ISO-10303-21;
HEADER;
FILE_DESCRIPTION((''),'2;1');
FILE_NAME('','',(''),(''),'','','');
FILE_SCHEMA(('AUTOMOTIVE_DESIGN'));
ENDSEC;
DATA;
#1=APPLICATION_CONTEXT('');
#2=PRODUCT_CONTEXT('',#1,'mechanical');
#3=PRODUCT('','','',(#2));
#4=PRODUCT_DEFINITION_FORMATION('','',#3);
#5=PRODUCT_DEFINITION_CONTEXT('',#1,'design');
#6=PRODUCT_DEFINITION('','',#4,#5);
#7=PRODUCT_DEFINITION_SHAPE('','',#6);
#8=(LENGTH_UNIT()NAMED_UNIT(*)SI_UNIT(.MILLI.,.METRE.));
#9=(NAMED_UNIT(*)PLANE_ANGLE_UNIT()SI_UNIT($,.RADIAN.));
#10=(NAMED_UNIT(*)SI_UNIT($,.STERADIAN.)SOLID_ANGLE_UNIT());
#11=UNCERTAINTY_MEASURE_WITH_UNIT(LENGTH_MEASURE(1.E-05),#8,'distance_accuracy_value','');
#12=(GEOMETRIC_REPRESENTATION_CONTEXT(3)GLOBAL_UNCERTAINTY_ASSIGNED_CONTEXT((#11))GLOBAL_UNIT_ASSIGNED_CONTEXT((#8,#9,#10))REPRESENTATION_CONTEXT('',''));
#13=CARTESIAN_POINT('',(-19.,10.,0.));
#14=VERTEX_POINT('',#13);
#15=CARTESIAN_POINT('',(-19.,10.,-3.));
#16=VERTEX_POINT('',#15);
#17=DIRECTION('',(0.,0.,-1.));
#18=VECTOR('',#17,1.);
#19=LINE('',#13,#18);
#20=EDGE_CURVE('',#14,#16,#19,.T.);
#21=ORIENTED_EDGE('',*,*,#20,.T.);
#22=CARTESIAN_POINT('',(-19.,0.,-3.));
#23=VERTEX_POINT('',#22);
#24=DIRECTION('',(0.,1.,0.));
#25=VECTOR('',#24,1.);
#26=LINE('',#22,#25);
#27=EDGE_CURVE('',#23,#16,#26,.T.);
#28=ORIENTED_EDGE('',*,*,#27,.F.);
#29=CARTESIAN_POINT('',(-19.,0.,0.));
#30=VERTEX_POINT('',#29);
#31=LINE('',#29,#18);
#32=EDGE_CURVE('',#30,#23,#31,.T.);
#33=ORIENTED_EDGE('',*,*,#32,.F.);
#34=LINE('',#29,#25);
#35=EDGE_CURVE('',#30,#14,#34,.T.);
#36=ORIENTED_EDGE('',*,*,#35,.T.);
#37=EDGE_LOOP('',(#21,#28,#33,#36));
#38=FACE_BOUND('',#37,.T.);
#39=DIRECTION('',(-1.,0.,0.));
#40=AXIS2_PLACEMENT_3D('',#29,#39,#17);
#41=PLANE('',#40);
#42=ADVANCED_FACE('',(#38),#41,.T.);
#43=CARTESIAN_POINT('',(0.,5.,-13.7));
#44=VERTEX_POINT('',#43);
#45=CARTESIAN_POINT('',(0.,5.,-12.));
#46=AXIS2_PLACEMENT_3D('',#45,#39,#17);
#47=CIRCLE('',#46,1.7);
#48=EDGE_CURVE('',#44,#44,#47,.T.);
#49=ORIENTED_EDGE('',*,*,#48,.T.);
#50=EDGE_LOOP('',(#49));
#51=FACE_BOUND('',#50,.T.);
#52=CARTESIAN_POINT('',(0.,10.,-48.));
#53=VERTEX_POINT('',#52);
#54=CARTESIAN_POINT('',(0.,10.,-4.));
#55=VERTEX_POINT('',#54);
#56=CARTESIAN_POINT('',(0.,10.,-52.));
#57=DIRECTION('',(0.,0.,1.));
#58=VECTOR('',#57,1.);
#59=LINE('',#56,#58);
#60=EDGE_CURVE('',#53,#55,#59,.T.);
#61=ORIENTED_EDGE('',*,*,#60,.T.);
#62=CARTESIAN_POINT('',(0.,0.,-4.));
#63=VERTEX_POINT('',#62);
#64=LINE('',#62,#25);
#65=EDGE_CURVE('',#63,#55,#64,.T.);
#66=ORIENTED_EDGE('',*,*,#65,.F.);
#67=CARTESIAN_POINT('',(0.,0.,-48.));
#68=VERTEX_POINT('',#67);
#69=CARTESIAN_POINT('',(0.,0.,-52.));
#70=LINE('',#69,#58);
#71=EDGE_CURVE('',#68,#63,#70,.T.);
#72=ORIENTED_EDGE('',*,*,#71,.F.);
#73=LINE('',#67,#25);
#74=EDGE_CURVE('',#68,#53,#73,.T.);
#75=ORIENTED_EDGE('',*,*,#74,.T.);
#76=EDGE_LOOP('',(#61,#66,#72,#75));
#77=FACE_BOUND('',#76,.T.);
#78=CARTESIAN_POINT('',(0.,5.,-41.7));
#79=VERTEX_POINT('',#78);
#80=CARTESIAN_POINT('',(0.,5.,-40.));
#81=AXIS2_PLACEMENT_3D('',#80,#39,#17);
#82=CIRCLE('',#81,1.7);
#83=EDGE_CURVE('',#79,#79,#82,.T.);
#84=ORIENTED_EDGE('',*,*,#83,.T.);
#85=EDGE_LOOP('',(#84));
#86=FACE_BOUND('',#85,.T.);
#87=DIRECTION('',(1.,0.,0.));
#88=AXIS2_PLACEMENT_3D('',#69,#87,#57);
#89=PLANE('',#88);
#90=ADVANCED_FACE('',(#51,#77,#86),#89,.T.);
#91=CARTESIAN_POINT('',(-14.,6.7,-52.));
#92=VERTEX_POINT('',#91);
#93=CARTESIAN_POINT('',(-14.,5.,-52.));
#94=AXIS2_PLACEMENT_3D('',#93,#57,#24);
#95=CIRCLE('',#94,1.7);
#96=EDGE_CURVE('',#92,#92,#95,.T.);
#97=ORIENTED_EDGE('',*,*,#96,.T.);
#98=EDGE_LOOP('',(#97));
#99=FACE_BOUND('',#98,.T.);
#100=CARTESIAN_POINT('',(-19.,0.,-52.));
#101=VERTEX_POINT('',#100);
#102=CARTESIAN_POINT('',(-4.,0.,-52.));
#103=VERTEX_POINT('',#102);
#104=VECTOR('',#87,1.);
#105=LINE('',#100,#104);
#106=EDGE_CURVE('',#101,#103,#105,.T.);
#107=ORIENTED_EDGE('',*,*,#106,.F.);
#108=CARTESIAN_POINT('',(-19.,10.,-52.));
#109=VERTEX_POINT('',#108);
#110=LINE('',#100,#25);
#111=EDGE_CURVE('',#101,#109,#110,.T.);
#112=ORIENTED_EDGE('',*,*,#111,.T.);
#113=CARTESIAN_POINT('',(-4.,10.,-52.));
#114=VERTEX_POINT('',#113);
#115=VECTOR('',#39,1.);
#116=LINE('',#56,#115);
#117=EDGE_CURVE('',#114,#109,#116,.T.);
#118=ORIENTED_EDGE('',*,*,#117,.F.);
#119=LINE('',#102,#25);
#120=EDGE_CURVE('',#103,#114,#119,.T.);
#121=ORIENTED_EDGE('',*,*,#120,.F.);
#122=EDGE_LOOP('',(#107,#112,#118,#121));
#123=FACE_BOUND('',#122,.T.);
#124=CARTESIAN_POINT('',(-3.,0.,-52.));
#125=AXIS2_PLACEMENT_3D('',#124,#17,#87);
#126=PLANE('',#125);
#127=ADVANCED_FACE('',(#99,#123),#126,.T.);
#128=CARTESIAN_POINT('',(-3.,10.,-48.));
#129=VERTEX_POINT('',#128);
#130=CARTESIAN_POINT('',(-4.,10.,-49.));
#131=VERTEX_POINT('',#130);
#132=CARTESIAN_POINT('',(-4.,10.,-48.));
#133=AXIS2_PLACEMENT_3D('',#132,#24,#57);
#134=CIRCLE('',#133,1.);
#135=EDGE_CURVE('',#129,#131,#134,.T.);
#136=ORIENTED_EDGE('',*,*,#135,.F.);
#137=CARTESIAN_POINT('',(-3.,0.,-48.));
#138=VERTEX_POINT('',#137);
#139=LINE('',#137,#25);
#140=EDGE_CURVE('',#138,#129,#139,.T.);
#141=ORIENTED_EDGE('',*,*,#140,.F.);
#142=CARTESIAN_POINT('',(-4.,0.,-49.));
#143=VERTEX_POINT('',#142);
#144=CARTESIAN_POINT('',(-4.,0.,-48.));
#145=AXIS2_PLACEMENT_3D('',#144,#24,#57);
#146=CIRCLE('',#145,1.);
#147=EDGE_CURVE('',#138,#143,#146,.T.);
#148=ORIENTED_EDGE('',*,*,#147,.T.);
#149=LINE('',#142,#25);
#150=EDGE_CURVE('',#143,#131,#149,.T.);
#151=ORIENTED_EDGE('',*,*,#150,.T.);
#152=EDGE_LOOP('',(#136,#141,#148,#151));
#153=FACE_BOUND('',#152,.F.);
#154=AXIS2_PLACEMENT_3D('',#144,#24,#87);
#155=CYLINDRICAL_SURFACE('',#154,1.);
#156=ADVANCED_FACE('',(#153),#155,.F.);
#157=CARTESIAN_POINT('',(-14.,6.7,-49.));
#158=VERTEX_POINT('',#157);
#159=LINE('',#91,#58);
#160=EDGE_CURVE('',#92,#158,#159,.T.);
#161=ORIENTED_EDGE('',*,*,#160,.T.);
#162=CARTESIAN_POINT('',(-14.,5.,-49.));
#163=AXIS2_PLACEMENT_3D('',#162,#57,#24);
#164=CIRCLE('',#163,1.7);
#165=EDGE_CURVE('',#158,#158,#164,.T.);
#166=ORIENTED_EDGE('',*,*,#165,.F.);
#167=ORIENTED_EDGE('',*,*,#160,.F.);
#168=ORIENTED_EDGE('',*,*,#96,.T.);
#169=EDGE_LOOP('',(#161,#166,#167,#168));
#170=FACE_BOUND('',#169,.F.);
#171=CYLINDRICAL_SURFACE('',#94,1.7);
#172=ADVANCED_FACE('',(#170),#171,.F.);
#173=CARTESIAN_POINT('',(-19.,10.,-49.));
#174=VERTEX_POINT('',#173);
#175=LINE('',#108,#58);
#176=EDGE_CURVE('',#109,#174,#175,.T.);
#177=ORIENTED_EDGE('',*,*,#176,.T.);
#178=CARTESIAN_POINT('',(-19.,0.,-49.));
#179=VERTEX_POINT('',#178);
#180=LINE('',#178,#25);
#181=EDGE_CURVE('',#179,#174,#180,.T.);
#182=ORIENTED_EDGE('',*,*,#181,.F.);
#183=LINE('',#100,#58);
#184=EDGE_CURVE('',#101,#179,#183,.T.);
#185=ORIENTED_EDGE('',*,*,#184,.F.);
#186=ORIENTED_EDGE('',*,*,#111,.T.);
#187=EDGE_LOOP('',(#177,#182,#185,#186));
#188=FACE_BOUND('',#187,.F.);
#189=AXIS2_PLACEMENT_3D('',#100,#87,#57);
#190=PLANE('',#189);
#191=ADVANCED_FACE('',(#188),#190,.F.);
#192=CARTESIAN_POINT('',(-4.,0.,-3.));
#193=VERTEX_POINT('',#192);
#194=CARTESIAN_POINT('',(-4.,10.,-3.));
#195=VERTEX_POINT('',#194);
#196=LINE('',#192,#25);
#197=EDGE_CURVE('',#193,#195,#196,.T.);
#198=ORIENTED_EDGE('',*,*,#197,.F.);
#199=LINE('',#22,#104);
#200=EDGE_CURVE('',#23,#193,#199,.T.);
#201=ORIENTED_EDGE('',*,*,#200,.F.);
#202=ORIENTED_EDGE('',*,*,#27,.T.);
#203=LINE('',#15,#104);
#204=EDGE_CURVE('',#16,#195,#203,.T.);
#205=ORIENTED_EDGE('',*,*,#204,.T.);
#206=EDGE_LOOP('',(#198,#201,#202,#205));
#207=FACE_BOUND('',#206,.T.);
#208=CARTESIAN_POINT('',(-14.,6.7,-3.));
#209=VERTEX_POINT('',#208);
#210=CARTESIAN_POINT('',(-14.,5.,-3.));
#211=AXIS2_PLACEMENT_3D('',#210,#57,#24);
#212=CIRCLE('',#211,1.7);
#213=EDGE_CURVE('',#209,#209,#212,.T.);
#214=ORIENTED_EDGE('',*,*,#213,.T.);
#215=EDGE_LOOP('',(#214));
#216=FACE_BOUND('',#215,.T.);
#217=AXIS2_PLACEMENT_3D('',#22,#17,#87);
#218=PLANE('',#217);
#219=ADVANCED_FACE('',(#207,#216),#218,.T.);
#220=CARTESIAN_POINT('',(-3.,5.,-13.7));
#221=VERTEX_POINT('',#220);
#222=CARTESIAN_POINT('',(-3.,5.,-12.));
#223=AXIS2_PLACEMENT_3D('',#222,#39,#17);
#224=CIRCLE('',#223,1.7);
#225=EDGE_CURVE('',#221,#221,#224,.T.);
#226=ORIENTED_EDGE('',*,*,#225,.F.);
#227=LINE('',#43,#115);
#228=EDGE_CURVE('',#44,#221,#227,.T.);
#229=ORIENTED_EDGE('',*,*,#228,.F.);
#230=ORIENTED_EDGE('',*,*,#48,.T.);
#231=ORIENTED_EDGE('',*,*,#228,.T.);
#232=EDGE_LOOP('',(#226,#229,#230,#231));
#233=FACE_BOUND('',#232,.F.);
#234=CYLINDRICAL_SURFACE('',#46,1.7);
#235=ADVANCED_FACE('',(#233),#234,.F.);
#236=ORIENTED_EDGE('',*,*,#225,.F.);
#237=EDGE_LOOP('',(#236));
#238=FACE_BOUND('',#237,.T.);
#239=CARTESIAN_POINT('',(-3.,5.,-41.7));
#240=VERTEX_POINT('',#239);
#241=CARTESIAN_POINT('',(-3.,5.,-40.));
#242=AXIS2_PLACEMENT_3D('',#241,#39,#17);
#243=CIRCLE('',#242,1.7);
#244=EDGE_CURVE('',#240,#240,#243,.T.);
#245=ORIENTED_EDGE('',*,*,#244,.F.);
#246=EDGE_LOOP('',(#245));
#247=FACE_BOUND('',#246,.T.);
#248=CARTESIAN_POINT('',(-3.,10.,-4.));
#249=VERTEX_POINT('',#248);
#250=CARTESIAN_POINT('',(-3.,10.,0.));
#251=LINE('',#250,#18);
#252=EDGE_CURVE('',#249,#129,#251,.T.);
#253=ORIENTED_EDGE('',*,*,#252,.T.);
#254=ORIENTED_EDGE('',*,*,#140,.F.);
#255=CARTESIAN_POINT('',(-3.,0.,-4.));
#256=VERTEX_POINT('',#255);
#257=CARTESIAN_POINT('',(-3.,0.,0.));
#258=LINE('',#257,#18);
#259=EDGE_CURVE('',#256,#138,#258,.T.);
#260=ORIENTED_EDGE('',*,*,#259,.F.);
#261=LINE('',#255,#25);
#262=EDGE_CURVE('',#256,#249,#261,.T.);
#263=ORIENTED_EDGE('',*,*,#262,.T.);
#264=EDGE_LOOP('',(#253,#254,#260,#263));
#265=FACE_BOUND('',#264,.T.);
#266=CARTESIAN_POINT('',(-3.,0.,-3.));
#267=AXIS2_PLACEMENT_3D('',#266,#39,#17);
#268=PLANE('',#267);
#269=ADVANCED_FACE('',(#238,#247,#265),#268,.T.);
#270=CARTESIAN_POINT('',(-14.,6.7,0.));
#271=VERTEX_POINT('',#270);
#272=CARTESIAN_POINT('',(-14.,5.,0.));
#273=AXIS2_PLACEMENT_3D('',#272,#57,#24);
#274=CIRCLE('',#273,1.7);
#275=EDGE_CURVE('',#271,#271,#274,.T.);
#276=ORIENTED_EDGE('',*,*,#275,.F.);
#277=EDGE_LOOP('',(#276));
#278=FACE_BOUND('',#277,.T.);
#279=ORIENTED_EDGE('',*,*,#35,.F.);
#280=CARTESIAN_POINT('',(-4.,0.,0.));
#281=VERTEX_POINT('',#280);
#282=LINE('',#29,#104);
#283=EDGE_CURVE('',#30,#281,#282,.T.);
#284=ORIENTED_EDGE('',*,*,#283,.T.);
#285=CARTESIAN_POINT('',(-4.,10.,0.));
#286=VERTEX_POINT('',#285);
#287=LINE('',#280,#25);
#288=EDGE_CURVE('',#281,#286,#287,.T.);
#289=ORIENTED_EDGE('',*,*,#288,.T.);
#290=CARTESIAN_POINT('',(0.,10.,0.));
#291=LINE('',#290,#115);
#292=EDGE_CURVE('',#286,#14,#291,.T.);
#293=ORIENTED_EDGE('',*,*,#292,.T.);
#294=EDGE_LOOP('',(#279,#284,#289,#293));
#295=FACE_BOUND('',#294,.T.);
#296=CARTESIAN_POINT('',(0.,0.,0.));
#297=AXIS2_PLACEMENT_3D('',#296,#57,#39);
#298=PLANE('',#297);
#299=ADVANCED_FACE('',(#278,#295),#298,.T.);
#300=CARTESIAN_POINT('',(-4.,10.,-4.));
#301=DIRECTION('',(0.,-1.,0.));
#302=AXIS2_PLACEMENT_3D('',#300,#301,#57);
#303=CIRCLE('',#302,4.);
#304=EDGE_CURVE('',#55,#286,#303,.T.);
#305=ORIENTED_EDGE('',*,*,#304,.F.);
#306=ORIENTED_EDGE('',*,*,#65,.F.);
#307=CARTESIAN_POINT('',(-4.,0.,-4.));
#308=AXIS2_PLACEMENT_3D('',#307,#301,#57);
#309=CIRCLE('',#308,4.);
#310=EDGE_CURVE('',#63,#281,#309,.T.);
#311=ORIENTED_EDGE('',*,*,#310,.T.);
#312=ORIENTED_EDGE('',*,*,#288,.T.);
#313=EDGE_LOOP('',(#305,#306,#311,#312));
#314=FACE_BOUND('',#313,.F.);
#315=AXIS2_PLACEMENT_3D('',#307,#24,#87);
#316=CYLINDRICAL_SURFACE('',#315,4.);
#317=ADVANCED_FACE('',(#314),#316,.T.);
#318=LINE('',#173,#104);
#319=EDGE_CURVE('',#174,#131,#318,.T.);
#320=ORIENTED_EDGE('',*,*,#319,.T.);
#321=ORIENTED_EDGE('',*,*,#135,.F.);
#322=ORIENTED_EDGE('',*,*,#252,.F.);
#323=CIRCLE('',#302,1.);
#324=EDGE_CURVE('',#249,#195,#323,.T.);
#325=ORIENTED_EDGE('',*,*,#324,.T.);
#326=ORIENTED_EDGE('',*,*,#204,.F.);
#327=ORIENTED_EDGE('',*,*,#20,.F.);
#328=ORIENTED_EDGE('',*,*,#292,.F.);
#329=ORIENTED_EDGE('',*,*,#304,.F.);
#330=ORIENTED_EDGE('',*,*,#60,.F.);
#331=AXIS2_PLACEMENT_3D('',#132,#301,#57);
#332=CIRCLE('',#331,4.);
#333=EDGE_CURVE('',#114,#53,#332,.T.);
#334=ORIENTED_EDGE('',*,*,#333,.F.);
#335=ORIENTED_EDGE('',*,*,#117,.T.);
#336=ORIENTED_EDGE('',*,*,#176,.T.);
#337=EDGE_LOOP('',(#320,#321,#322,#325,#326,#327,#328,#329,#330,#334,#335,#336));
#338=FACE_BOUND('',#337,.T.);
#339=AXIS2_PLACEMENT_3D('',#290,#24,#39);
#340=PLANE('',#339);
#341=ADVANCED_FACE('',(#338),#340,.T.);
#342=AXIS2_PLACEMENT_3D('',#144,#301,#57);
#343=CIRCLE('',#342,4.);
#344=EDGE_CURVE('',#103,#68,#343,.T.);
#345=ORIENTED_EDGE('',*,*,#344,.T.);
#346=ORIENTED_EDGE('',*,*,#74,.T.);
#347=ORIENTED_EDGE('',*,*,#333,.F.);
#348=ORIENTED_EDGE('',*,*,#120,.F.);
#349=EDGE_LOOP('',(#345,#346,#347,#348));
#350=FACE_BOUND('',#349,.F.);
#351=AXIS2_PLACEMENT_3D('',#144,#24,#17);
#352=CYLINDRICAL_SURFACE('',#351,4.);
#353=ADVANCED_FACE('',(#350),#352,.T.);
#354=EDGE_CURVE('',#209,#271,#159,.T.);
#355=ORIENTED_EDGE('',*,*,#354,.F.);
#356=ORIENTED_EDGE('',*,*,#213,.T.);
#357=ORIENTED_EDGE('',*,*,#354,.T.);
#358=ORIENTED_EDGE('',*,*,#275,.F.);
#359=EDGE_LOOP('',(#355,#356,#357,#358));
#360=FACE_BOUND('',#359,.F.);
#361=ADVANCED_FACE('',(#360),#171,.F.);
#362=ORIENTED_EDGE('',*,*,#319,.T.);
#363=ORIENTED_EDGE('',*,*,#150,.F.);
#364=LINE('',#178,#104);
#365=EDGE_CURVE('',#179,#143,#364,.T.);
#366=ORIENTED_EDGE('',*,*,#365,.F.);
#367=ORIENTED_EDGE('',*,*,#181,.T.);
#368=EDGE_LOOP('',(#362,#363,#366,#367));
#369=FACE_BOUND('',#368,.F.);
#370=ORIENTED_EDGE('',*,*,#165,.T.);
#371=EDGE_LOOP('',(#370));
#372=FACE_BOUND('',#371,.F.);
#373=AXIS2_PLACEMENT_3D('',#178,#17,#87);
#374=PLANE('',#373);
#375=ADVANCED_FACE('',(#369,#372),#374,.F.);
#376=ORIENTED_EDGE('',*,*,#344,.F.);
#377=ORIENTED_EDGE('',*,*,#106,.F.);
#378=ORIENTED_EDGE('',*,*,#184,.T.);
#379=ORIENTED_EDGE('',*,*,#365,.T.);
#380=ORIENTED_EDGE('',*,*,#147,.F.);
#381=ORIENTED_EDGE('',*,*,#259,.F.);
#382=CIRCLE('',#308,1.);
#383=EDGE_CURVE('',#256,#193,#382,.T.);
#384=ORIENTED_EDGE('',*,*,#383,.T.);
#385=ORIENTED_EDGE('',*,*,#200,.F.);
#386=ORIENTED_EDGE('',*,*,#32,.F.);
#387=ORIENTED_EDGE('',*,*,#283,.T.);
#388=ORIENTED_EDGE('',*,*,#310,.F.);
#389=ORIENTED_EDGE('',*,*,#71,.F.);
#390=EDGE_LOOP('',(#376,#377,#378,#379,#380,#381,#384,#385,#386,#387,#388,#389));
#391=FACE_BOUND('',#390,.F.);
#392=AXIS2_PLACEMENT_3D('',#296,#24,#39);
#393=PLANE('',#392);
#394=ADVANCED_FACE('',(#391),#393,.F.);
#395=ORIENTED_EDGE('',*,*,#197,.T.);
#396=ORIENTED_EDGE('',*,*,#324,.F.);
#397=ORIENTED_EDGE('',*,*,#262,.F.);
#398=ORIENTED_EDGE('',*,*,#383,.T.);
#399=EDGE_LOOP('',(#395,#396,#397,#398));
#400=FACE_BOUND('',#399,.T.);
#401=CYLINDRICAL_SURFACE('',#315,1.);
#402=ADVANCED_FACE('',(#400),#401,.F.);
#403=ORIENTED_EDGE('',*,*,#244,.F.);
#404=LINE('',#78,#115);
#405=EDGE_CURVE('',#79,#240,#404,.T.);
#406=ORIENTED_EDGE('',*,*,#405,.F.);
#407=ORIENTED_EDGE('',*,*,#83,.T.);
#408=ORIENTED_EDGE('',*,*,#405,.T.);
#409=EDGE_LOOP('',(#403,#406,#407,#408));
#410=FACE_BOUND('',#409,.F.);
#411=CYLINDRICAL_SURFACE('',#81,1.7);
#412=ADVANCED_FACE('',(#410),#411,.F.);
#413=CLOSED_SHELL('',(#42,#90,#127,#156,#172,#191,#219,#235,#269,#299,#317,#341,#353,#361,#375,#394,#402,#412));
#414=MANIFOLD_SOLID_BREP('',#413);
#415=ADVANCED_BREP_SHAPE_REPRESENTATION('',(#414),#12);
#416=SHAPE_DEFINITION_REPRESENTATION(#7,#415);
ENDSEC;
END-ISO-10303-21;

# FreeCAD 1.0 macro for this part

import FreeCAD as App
import Part
import Sketcher
from FreeCAD import Vector


def edges_at(feature, points):
    """Names of the edges that pass closest to the given points."""
    edges = feature.Shape.Edges
    near = lambda p: min(range(len(edges)), key=lambda i: edges[i].distToShape(Part.Vertex(*p))[0])
    return sorted({f"Edge{near(p) + 1}" for p in points})

doc = App.newDocument("Part")
body = doc.addObject("PartDesign::Body", "Body")

# Sketch on XZ plane
sketch1 = body.newObject("Sketcher::SketchObject", "Sketch")
sketch1.AttachmentSupport = (doc.getObject("XZ_Plane"), [""])
sketch1.MapMode = "FlatFace"
sketch1.addGeometry(Part.LineSegment(Vector(0, 0, 0), Vector(0, -52, 0)), False)
sketch1.addGeometry(Part.LineSegment(Vector(0, -52, 0), Vector(-19, -52, 0)), False)
sketch1.addGeometry(Part.LineSegment(Vector(-19, -52, 0), Vector(-19, -49, 0)), False)
sketch1.addGeometry(Part.LineSegment(Vector(-19, -49, 0), Vector(-3, -49, 0)), False)
sketch1.addGeometry(Part.LineSegment(Vector(-3, -49, 0), Vector(-3, -3, 0)), False)
sketch1.addGeometry(Part.LineSegment(Vector(-3, -3, 0), Vector(-19, -3, 0)), False)
sketch1.addGeometry(Part.LineSegment(Vector(-19, -3, 0), Vector(-19, 0, 0)), False)
sketch1.addGeometry(Part.LineSegment(Vector(-19, 0, 0), Vector(0, 0, 0)), False)
sketch1.addConstraint(Sketcher.Constraint("Coincident", 0, 2, 1, 1))
sketch1.addConstraint(Sketcher.Constraint("Coincident", 1, 2, 2, 1))
sketch1.addConstraint(Sketcher.Constraint("Coincident", 2, 2, 3, 1))
sketch1.addConstraint(Sketcher.Constraint("Coincident", 3, 2, 4, 1))
sketch1.addConstraint(Sketcher.Constraint("Coincident", 4, 2, 5, 1))
sketch1.addConstraint(Sketcher.Constraint("Coincident", 5, 2, 6, 1))
sketch1.addConstraint(Sketcher.Constraint("Coincident", 6, 2, 7, 1))
sketch1.addConstraint(Sketcher.Constraint("Coincident", 7, 2, 0, 1))
sketch1.addConstraint(Sketcher.Constraint("Vertical", 0))
sketch1.addConstraint(Sketcher.Constraint("Horizontal", 1))
sketch1.addConstraint(Sketcher.Constraint("Vertical", 2))
sketch1.addConstraint(Sketcher.Constraint("Horizontal", 3))
sketch1.addConstraint(Sketcher.Constraint("Vertical", 4))
sketch1.addConstraint(Sketcher.Constraint("Horizontal", 5))
sketch1.addConstraint(Sketcher.Constraint("Vertical", 6))
sketch1.addConstraint(Sketcher.Constraint("Horizontal", 7))
sketch1.addConstraint(Sketcher.Constraint("Coincident", 7, 2, -1, 1))
sketch1.addConstraint(Sketcher.Constraint("Vertical", 2, 2, 5, 2))
sketch1.addConstraint(Sketcher.Constraint("Equal", 2, 6))
sketch1.addConstraint(Sketcher.Constraint("DistanceX", 3, 1, 3, 2, 16.0))
sketch1.addConstraint(Sketcher.Constraint("DistanceY", 2, 1, 2, 2, 3.0))
sketch1.addConstraint(Sketcher.Constraint("DistanceY", 4, 1, 4, 2, 46.0))
sketch1.addConstraint(Sketcher.Constraint("DistanceX", 3, 2, -1, 1, 3.0))
pad1 = body.newObject("PartDesign::Pad", "Pad")
pad1.Profile = sketch1
pad1.Length = 10
pad1.Reversed = True
doc.recompute()

fillet = body.newObject("PartDesign::Fillet", "Fillet")
fillet.Base = (pad1, edges_at(pad1, [(-3, 5, -49), (-3, 5, -3)]))
fillet.Radius = 1
doc.recompute()

fillet2 = body.newObject("PartDesign::Fillet", "Fillet001")
fillet2.Base = (fillet, edges_at(fillet, [(0, 5, -52), (0, 5, 0)]))
fillet2.Radius = 4

# Sketch on XY plane
sketch2 = body.newObject("Sketcher::SketchObject", "Sketch001")
sketch2.AttachmentSupport = (doc.getObject("XY_Plane"), [""])
sketch2.MapMode = "FlatFace"
sketch2.AttachmentOffset = App.Placement(Vector(0, 0, -52), App.Rotation())
sketch2.addGeometry(Part.Circle(Vector(-14, 5, 0), Vector(0, 0, 1), 1.7), False)
sketch2.addConstraint(Sketcher.Constraint("Diameter", 0, 3.4))
sketch2.addConstraint(Sketcher.Constraint("DistanceX", 0, 3, -1, 1, 14.0))
sketch2.addConstraint(Sketcher.Constraint("DistanceY", -1, 1, 0, 3, 5.0))
doc.recompute()
hole = body.newObject("PartDesign::Hole", "Hole")
hole.Profile = sketch2
hole.ThreadType = "None"
hole.Diameter = 3.4
hole.DepthType = "ThroughAll"
hole.Reversed = True

# Sketch on YZ plane
sketch3 = body.newObject("Sketcher::SketchObject", "Sketch002")
sketch3.AttachmentSupport = (doc.getObject("YZ_Plane"), [""])
sketch3.MapMode = "FlatFace"
sketch3.addGeometry(Part.Circle(Vector(5, -12, 0), Vector(0, 0, 1), 1.7), False)
sketch3.addGeometry(Part.Circle(Vector(5, -40, 0), Vector(0, 0, 1), 1.7), False)
sketch3.addConstraint(Sketcher.Constraint("Equal", 0, 1))
sketch3.addConstraint(Sketcher.Constraint("Vertical", 0, 3, 1, 3))
sketch3.addConstraint(Sketcher.Constraint("Diameter", 0, 3.4))
sketch3.addConstraint(Sketcher.Constraint("DistanceX", -1, 1, 0, 3, 5.0))
sketch3.addConstraint(Sketcher.Constraint("DistanceY", 0, 3, -1, 1, 12.0))
sketch3.addConstraint(Sketcher.Constraint("DistanceY", 1, 3, -1, 1, 40.0))
doc.recompute()
hole2 = body.newObject("PartDesign::Hole", "Hole001")
hole2.Profile = sketch3
hole2.ThreadType = "None"
hole2.Diameter = 3.4
hole2.DepthType = "ThroughAll"

doc.recompute()
